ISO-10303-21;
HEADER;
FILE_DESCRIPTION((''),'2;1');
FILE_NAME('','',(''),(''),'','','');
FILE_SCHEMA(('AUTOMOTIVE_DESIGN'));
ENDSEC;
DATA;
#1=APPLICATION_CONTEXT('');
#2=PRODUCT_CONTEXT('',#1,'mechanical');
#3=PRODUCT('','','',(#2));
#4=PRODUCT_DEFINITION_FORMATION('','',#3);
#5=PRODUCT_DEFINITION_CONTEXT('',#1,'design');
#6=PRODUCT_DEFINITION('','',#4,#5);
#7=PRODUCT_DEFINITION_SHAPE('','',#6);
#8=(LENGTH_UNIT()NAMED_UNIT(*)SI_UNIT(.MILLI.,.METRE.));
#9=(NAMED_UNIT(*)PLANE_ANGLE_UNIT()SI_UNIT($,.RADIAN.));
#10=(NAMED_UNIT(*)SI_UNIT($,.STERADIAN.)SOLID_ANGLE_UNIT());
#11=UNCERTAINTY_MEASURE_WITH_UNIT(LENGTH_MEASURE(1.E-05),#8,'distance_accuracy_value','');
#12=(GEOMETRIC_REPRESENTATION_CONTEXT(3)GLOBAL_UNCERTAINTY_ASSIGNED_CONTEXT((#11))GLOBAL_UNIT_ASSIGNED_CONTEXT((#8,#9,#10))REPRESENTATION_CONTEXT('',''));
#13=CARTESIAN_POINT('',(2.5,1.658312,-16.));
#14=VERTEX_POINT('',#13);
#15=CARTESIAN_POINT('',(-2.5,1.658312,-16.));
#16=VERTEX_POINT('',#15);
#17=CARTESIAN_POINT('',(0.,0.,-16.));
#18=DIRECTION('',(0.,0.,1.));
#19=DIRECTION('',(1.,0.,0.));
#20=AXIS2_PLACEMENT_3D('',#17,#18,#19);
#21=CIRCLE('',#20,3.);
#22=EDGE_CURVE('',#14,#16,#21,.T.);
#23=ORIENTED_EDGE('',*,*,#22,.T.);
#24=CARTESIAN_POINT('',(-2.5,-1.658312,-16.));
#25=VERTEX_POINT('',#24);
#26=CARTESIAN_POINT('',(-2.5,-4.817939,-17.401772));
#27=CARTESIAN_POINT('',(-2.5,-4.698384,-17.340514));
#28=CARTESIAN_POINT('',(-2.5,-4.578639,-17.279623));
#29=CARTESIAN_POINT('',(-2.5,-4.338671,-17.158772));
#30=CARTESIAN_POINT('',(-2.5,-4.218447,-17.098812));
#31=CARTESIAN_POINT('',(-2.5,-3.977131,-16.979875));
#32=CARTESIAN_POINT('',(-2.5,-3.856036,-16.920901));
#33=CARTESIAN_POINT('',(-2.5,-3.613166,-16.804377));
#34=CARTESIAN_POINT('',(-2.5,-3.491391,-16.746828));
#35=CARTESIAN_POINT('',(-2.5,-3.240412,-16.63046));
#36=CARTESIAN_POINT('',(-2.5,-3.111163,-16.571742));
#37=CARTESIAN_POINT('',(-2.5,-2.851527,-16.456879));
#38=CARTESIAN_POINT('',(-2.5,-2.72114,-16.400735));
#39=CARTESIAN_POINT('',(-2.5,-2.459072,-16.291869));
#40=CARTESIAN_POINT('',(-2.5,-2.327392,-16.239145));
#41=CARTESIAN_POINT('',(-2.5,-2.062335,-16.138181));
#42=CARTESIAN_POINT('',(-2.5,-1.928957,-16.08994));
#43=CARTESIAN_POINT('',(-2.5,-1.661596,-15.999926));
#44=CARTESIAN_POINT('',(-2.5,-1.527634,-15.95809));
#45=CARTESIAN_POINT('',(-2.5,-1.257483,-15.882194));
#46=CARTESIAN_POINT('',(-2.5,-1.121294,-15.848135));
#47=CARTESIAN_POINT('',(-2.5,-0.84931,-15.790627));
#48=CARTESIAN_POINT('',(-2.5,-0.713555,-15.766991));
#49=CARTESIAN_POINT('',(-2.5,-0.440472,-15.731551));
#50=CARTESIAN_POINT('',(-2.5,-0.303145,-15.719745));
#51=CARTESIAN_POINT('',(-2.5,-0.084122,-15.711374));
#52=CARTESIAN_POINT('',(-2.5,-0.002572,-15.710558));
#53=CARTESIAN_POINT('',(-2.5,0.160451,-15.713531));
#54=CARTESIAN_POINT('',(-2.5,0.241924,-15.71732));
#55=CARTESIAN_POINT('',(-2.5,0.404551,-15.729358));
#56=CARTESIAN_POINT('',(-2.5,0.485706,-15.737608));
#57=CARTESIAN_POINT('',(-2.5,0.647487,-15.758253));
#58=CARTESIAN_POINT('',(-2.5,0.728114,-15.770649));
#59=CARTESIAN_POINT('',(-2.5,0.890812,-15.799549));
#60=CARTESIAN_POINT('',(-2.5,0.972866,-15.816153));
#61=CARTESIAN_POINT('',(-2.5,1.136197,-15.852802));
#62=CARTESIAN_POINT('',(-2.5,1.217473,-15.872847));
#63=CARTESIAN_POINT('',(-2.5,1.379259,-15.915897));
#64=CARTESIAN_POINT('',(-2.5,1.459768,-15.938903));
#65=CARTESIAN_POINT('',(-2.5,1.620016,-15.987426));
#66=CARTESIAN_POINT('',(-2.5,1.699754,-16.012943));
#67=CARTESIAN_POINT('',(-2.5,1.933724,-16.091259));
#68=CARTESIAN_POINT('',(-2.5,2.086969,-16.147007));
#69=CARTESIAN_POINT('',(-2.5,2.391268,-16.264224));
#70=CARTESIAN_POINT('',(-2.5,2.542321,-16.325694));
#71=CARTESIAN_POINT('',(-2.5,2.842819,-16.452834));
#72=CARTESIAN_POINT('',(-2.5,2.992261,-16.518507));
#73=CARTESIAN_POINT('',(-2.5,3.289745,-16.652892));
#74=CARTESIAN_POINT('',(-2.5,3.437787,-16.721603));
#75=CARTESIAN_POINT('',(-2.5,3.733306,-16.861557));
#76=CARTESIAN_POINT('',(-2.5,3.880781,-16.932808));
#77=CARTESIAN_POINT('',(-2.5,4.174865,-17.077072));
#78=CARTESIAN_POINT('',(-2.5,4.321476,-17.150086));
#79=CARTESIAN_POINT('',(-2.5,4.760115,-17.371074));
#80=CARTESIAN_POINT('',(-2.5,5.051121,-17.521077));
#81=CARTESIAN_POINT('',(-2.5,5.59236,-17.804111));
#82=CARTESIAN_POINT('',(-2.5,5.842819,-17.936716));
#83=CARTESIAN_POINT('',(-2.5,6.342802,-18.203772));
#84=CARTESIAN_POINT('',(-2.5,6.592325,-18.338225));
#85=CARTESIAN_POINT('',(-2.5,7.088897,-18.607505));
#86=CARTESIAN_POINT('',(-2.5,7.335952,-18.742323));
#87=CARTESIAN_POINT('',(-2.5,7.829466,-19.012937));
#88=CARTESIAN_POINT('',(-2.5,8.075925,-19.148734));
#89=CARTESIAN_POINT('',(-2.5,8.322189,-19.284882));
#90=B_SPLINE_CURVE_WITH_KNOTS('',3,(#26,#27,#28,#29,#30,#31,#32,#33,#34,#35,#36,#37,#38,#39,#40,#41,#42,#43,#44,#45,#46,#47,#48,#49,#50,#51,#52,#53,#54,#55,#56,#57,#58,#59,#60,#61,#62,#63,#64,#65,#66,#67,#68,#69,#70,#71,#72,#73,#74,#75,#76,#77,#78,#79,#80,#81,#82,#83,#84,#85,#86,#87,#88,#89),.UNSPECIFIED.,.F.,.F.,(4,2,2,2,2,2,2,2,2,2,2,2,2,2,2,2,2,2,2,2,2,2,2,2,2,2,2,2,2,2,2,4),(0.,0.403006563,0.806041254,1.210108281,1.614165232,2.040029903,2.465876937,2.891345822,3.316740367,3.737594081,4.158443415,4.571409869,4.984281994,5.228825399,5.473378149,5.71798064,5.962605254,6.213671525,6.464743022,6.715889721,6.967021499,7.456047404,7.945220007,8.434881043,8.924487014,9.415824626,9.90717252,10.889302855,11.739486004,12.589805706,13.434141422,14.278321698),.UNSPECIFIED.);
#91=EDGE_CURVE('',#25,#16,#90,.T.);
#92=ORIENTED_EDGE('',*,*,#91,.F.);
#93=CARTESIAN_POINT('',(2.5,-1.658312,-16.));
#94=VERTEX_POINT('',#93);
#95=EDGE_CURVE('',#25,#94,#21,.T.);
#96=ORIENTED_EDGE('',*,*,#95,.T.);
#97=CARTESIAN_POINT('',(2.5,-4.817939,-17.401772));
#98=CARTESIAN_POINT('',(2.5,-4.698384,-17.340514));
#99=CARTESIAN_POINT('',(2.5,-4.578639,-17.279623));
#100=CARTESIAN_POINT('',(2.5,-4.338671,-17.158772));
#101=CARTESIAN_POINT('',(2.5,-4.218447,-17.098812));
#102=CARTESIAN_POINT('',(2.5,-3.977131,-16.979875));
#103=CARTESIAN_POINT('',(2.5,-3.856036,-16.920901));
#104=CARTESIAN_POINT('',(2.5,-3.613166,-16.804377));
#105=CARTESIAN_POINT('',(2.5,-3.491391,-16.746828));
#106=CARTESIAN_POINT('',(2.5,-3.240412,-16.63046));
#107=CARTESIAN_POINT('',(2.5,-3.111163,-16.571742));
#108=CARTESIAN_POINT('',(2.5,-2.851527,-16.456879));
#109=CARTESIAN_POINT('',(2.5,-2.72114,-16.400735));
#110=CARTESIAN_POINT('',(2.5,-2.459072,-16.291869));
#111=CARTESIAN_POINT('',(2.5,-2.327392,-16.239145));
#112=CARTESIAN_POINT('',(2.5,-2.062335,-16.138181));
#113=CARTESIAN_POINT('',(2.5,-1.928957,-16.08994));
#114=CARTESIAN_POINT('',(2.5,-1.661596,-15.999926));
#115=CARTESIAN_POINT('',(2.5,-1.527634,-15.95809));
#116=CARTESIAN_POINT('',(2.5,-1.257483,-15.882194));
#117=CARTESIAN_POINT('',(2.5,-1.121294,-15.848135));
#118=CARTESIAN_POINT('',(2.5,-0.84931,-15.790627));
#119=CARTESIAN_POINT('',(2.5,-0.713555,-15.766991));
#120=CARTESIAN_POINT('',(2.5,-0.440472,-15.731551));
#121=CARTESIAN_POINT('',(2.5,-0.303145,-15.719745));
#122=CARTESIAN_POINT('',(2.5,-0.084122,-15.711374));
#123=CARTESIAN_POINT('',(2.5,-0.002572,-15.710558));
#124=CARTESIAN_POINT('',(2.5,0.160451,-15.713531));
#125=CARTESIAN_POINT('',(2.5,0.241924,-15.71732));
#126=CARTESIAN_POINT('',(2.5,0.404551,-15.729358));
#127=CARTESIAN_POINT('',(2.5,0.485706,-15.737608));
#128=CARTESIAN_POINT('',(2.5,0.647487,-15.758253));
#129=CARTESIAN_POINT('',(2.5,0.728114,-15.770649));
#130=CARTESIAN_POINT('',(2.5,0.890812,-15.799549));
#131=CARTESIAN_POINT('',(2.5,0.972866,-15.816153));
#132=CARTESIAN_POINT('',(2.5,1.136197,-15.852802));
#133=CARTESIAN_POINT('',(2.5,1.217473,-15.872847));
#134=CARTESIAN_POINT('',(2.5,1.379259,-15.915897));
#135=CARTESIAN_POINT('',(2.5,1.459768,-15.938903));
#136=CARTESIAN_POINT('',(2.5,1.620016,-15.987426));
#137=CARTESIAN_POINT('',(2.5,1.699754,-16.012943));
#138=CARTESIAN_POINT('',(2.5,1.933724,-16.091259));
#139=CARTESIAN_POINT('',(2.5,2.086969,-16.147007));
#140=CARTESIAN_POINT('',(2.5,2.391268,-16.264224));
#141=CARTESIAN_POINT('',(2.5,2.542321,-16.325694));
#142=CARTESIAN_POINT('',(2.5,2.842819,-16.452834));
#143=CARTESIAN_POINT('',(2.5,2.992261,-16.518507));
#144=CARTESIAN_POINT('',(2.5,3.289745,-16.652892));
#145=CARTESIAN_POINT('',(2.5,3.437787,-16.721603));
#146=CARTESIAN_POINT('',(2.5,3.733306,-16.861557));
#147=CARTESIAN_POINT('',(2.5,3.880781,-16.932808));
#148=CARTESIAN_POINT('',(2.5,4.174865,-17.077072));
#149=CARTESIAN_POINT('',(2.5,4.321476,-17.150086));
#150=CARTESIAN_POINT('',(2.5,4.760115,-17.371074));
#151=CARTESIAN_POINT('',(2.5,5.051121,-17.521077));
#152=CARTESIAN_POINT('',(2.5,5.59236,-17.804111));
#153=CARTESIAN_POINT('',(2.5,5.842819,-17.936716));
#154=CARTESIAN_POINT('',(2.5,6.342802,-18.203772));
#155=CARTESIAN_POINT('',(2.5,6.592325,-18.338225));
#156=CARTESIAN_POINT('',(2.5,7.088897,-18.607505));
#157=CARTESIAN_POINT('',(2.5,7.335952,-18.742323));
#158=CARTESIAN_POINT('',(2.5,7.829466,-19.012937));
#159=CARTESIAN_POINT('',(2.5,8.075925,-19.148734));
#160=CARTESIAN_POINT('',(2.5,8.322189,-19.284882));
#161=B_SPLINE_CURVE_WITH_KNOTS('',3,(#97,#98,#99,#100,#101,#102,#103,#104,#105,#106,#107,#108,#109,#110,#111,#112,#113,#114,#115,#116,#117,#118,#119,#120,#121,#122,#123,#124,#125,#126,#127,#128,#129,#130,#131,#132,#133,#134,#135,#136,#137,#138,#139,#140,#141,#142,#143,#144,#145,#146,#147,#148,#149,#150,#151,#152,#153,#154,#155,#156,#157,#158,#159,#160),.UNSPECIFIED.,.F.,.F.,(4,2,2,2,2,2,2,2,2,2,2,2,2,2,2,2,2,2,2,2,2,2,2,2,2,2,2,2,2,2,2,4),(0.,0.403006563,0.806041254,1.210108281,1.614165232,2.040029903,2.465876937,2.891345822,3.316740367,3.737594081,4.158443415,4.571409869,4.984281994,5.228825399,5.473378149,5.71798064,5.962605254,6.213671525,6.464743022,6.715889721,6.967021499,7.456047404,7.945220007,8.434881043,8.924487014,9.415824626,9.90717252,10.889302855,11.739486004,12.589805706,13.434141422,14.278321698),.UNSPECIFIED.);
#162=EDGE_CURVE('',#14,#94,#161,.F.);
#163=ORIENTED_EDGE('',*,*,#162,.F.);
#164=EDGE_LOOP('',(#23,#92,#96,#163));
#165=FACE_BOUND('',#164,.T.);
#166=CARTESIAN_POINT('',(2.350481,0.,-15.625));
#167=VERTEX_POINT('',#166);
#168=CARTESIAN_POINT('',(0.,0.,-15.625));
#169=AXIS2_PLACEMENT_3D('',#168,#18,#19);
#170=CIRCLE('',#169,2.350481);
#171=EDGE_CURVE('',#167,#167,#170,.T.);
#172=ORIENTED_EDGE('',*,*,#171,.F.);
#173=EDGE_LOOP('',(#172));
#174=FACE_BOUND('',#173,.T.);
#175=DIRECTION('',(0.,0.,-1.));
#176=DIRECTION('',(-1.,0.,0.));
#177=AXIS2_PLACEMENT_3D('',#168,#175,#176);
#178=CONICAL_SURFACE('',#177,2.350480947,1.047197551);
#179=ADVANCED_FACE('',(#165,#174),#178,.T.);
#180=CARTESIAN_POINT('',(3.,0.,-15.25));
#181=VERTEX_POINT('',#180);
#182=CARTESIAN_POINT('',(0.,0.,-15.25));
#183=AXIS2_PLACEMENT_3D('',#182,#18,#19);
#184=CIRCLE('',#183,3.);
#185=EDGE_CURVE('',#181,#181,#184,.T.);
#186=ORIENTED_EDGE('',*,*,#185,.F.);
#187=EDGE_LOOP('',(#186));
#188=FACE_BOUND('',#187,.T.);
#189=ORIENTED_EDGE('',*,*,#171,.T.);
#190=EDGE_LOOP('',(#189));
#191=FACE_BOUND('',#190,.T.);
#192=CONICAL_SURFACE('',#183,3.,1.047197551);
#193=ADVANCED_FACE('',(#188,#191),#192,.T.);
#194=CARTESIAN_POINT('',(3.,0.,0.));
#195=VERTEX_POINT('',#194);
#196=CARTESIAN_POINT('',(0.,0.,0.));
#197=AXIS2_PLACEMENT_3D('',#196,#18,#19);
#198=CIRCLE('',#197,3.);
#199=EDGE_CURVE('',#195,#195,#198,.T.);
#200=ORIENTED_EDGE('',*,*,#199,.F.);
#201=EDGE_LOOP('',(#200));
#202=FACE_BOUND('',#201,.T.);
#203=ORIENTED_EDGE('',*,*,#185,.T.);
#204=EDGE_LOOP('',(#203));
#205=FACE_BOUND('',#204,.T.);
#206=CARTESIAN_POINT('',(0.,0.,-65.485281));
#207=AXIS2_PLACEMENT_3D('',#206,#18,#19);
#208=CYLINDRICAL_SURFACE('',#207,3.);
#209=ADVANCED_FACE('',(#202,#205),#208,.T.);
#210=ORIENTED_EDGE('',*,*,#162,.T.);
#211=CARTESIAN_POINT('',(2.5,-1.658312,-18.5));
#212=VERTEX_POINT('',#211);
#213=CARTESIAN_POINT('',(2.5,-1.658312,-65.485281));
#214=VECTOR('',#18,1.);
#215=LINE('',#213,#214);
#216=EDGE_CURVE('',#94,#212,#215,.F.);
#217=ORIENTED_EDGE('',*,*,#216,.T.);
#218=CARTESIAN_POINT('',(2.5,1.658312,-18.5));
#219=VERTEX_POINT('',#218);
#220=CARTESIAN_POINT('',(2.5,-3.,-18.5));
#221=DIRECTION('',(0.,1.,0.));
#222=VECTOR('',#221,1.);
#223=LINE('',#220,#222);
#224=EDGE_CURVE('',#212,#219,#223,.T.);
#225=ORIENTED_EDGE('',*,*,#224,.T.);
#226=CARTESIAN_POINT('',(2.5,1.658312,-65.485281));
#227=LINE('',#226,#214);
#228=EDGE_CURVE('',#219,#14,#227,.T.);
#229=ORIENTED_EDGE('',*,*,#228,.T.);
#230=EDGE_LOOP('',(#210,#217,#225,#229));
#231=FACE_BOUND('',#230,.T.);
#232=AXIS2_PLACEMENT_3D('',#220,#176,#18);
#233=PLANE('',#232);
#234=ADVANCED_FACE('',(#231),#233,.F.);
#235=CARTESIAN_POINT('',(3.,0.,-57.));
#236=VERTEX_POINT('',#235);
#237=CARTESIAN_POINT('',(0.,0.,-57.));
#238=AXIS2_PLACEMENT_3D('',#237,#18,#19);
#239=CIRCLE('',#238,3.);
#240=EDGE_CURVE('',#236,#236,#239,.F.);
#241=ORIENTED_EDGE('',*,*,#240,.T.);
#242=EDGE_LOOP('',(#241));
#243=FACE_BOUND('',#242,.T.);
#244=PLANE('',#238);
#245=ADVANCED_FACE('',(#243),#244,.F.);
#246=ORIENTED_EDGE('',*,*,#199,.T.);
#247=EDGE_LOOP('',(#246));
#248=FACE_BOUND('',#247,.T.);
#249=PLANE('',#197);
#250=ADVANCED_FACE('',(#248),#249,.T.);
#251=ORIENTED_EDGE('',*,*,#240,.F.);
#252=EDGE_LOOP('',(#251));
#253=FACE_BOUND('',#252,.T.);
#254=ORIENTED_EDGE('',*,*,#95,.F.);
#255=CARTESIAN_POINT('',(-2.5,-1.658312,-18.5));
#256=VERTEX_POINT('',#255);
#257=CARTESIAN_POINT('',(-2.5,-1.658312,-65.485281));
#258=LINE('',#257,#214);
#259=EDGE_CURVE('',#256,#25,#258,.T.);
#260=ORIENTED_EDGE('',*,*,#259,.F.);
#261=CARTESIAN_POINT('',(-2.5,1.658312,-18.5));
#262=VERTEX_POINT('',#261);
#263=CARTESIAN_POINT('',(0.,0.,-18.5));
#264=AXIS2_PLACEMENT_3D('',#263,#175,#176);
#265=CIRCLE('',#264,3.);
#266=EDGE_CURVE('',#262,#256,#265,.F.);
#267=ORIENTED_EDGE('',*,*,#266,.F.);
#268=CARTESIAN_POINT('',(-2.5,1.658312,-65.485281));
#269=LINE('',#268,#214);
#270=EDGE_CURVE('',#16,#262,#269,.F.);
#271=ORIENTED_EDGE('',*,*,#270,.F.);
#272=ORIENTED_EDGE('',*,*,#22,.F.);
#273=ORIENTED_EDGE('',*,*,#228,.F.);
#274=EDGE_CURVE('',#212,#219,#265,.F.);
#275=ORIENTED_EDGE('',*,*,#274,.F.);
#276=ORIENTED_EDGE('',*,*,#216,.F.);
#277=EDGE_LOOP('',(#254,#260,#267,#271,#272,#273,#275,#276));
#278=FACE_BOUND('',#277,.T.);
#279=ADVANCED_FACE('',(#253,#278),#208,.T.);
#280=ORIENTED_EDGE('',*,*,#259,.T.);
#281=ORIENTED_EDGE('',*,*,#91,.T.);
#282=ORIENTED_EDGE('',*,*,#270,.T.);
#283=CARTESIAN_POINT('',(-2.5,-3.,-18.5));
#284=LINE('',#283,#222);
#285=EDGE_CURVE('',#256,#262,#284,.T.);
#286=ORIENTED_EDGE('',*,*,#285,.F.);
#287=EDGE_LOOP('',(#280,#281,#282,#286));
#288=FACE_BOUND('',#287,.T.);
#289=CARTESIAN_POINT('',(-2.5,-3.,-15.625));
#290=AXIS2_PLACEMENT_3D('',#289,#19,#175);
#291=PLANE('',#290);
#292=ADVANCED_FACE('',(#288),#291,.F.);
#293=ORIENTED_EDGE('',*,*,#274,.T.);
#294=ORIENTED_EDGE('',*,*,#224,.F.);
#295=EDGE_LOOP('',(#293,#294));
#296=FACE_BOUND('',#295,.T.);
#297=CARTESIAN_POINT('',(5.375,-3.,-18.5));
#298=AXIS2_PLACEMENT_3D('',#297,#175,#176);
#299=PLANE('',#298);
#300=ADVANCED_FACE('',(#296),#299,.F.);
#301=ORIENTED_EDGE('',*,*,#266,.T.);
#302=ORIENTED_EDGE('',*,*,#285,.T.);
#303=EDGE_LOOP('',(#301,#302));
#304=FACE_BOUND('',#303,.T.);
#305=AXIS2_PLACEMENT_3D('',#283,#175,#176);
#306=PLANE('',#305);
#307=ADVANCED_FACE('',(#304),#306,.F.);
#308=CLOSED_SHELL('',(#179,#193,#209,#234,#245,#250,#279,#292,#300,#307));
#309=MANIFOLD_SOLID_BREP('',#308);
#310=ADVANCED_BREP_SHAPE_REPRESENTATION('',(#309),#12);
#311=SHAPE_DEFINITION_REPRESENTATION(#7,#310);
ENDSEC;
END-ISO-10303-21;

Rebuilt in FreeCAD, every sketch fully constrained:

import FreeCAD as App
import Part
import Sketcher
from FreeCAD import Vector
Q = App.Units.Quantity

doc = App.newDocument("Part")
params = doc.addObject("Spreadsheet::Sheet", "Params")
for row, (alias, value) in enumerate([
    ("sketch1_diameter", "6 mm"),
    ("pad1_length", "57 mm"),
    ("sketch2_height", "16 mm"),
    ("sketch2_height2", "15.25 mm"),
    ("groove_angle", "360 deg"),
], start=1):
    params.set(f"A{row}", alias)
    params.set(f"B{row}", "=" + value)
    params.setAlias(f"B{row}", alias)

body = doc.addObject("PartDesign::Body", "Body")

# Sketch on XY plane
sketch1 = body.newObject("Sketcher::SketchObject", "Sketch")
sketch1.AttachmentSupport = (doc.getObject("XY_Plane"), [""])
sketch1.MapMode = "FlatFace"
sketch1.addGeometry(Part.Circle(Vector(0, 0, 0), Vector(0, 0, 1), 3), False)
sketch1.addConstraint([
    Sketcher.Constraint("Coincident", 0, 3, -1, 1),
    Sketcher.Constraint("Diameter", 0, Q("6 mm")),
])
sketch1.setExpression("Constraints[1]", "Params.sketch1_diameter")
pad1 = body.newObject("PartDesign::Pad", "Pad")
pad1.Profile = sketch1
pad1.setExpression("Length", "Params.pad1_length")
pad1.Reversed = True

# Sketch on YZ plane
sketch2 = body.newObject("Sketcher::SketchObject", "Sketch001")
sketch2.AttachmentSupport = (doc.getObject("YZ_Plane"), [""])
sketch2.MapMode = "FlatFace"
sketch2.addGeometry([
    Part.LineSegment(Vector(2.4, -15.6, 0), Vector(3, -16, 0)),  # 0
    Part.LineSegment(Vector(3, -16, 0), Vector(5.8, -16, 0)),  # 1
    Part.LineSegment(Vector(5.8, -16, 0), Vector(5.8, 0, 0)),  # 2
    Part.LineSegment(Vector(5.8, 0, 0), Vector(3, 0, 0)),  # 3
    Part.LineSegment(Vector(3, 0, 0), Vector(3, -15.2, 0)),  # 4
    Part.LineSegment(Vector(3, -15.2, 0), Vector(2.4, -15.6, 0)),  # 5
], False)
sketch2.addConstraint([
    Sketcher.Constraint("Coincident", 0, 2, 1, 1),
    Sketcher.Constraint("Coincident", 1, 2, 2, 1),
    Sketcher.Constraint("Coincident", 2, 2, 3, 1),
    Sketcher.Constraint("Coincident", 3, 2, 4, 1),
    Sketcher.Constraint("Coincident", 4, 2, 5, 1),
    Sketcher.Constraint("Coincident", 5, 2, 0, 1),
    Sketcher.Constraint("Horizontal", 1),
    Sketcher.Constraint("Vertical", 2),
    Sketcher.Constraint("Horizontal", 3),
    Sketcher.Constraint("Vertical", 4),
    Sketcher.Constraint("PointOnObject", 2, 2, -1),
    Sketcher.Constraint("Vertical", 0, 2, 3, 2),
    Sketcher.Constraint("Equal", 0, 5),
    Sketcher.Constraint("DistanceY", 2, 1, 2, 2, Q("16 mm")),
    Sketcher.Constraint("Angle", 0, Q("-30 deg")),
    Sketcher.Constraint("DistanceX", -1, 1, 0, 2, Q("3 mm")),
    Sketcher.Constraint("DistanceY", 4, 2, 4, 1, Q("15.25 mm")),
    Sketcher.Constraint("DistanceX", 1, 1, 1, 2, Q("2.821232 mm")),
])
sketch2.setExpression("Constraints[13]", "Params.sketch2_height")
sketch2.setExpression("Constraints[16]", "Params.sketch2_height2")
groove = body.newObject("PartDesign::Groove", "Groove")
groove.Profile = sketch2
groove.ReferenceAxis = (sketch2, ["V_Axis"])
groove.setExpression("Angle", "Params.groove_angle")

# Sketch on XZ plane
sketch3 = body.newObject("Sketcher::SketchObject", "Sketch002")
sketch3.AttachmentSupport = (doc.getObject("XZ_Plane"), [""])
sketch3.MapMode = "FlatFace"
sketch3.addGeometry([
    Part.LineSegment(Vector(2.5, -18.5, 0), Vector(2.5, -15.6, 0)),  # 0
    Part.LineSegment(Vector(2.5, -15.6, 0), Vector(5.4, -15.6, 0)),  # 1
    Part.LineSegment(Vector(5.4, -15.6, 0), Vector(5.4, -18.5, 0)),  # 2
    Part.LineSegment(Vector(5.4, -18.5, 0), Vector(2.5, -18.5, 0)),  # 3
    Part.LineSegment(Vector(-5.4, -18.5, 0), Vector(-5.4, -15.6, 0)),  # 4
    Part.LineSegment(Vector(-5.4, -15.6, 0), Vector(-2.5, -15.6, 0)),  # 5
    Part.LineSegment(Vector(-2.5, -15.6, 0), Vector(-2.5, -18.5, 0)),  # 6
    Part.LineSegment(Vector(-2.5, -18.5, 0), Vector(-5.4, -18.5, 0)),  # 7
], False)
sketch3.addConstraint([
    Sketcher.Constraint("Coincident", 0, 2, 1, 1),
    Sketcher.Constraint("Coincident", 1, 2, 2, 1),
    Sketcher.Constraint("Coincident", 2, 2, 3, 1),
    Sketcher.Constraint("Coincident", 3, 2, 0, 1),
    Sketcher.Constraint("Coincident", 4, 2, 5, 1),
    Sketcher.Constraint("Coincident", 5, 2, 6, 1),
    Sketcher.Constraint("Coincident", 6, 2, 7, 1),
    Sketcher.Constraint("Coincident", 7, 2, 4, 1),
    Sketcher.Constraint("Vertical", 0),
    Sketcher.Constraint("Horizontal", 1),
    Sketcher.Constraint("Vertical", 2),
    Sketcher.Constraint("Horizontal", 3),
    Sketcher.Constraint("Vertical", 4),
    Sketcher.Constraint("Horizontal", 5),
    Sketcher.Constraint("Vertical", 6),
    Sketcher.Constraint("Horizontal", 7),
    Sketcher.Constraint("Symmetric", 1, 2, 4, 2, -2),
    Sketcher.Constraint("Symmetric", 3, 2, 6, 2, -2),
    Sketcher.Constraint("Equal", 7, 0),
    Sketcher.Constraint("DistanceX", 5, 2, 0, 2, Q("5 mm")),
    Sketcher.Constraint("DistanceY", 2, 2, -1, 1, Q("18.5 mm")),
    Sketcher.Constraint("DistanceX", 1, 1, 1, 2, Q("2.875 mm")),
])
pocket1 = body.newObject("PartDesign::Pocket", "Pocket")
pocket1.Profile = sketch3
pocket1.Type = "ThroughAll"
pocket1.Midplane = True

doc.recompute()
